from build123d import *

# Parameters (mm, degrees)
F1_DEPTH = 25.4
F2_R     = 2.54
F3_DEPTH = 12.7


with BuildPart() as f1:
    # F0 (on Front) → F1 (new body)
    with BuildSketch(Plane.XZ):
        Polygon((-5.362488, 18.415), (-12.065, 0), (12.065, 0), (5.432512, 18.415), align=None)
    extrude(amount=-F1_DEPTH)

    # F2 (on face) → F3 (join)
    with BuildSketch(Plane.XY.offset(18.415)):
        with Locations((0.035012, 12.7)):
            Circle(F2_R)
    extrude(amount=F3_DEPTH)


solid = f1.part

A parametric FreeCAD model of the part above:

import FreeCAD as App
import Part
import Sketcher
from FreeCAD import Vector
Q = App.Units.Quantity

doc = App.newDocument("Part")
params = doc.addObject("Spreadsheet::Sheet", "Params")
for row, (alias, value) in enumerate([
    ("sketch1_width", "0.95 in"),
    ("sketch1_width2", "0.425 in"),
    ("pad1_length", "1 in"),
    ("sketch2_diameter", "0.2 in"),
    ("pad2_length", "0.5 in"),
], start=1):
    params.set(f"A{row}", alias)
    params.set(f"B{row}", "=" + value)
    params.setAlias(f"B{row}", alias)

body = doc.addObject("PartDesign::Body", "Body")

# Sketch on XZ plane
sketch1 = doc.addObject("Sketcher::SketchObject", "Sketch")
body.addObject(sketch1)
sketch1.AttachmentSupport = (doc.XZ_Plane, [""])
sketch1.MapMode = "FlatFace"
sketch1.addGeometry(Part.LineSegment(Vector(-5, 18, 0), Vector(-12, 0, 0)), False)
sketch1.addGeometry(Part.LineSegment(Vector(-12, 0, 0), Vector(12, 0, 0)), False)
sketch1.addGeometry(Part.LineSegment(Vector(12, 0, 0), Vector(5, 18, 0)), False)
sketch1.addGeometry(Part.LineSegment(Vector(5, 18, 0), Vector(-5, 18, 0)), False)
sketch1.addConstraint(Sketcher.Constraint("Coincident", 0, 2, 1, 1))
sketch1.addConstraint(Sketcher.Constraint("Coincident", 1, 2, 2, 1))
sketch1.addConstraint(Sketcher.Constraint("Coincident", 2, 2, 3, 1))
sketch1.addConstraint(Sketcher.Constraint("Coincident", 3, 2, 0, 1))
sketch1.addConstraint(Sketcher.Constraint("Horizontal", 1))
sketch1.addConstraint(Sketcher.Constraint("Horizontal", 3))
sketch1.addConstraint(Sketcher.Constraint("Symmetric", 0, 2, 1, 2, -1, 1))
sketch1.addConstraint(Sketcher.Constraint("Angle", 0, Q("-110 deg")))
sketch1.addConstraint(Sketcher.Constraint("DistanceX", 1, 1, 1, 2, Q("0.95 in")))
sketch1.addConstraint(Sketcher.Constraint("DistanceX", 3, 2, 3, 1, Q("0.425 in")))
sketch1.addConstraint(Sketcher.Constraint("DistanceY", -1, 1, 2, 2, Q("0.725 in")))
sketch1.setExpression("Constraints[8]", "Params.sketch1_width")
sketch1.setExpression("Constraints[9]", "Params.sketch1_width2")
pad1 = doc.addObject("PartDesign::Pad", "Pad")
body.addObject(pad1)
pad1.Profile = sketch1
pad1.setExpression("Length", "Params.pad1_length")
pad1.Reversed = True

# Sketch on XY plane
sketch2 = doc.addObject("Sketcher::SketchObject", "Sketch001")
body.addObject(sketch2)
sketch2.AttachmentSupport = (doc.XY_Plane, [""])
sketch2.MapMode = "FlatFace"
sketch2.AttachmentOffset = App.Placement(Vector(0, 0, 0.725 * 25.4), App.Rotation())
sketch2.addGeometry(Part.Circle(Vector(0, 12.7, 0), Vector(0, 0, 1), 2.5), False)
sketch2.addConstraint(Sketcher.Constraint("Diameter", 0, Q("0.2 in")))
sketch2.addConstraint(Sketcher.Constraint("DistanceY", -1, 1, 0, 3, Q("0.5 in")))
sketch2.addConstraint(Sketcher.Constraint("DistanceX", -1, 1, 0, 3, Q("0.035012 mm")))
sketch2.setExpression("Constraints[0]", "Params.sketch2_diameter")
pad2 = doc.addObject("PartDesign::Pad", "Pad001")
body.addObject(pad2)
pad2.Profile = sketch2
pad2.setExpression("Length", "Params.pad2_length")

doc.recompute()
